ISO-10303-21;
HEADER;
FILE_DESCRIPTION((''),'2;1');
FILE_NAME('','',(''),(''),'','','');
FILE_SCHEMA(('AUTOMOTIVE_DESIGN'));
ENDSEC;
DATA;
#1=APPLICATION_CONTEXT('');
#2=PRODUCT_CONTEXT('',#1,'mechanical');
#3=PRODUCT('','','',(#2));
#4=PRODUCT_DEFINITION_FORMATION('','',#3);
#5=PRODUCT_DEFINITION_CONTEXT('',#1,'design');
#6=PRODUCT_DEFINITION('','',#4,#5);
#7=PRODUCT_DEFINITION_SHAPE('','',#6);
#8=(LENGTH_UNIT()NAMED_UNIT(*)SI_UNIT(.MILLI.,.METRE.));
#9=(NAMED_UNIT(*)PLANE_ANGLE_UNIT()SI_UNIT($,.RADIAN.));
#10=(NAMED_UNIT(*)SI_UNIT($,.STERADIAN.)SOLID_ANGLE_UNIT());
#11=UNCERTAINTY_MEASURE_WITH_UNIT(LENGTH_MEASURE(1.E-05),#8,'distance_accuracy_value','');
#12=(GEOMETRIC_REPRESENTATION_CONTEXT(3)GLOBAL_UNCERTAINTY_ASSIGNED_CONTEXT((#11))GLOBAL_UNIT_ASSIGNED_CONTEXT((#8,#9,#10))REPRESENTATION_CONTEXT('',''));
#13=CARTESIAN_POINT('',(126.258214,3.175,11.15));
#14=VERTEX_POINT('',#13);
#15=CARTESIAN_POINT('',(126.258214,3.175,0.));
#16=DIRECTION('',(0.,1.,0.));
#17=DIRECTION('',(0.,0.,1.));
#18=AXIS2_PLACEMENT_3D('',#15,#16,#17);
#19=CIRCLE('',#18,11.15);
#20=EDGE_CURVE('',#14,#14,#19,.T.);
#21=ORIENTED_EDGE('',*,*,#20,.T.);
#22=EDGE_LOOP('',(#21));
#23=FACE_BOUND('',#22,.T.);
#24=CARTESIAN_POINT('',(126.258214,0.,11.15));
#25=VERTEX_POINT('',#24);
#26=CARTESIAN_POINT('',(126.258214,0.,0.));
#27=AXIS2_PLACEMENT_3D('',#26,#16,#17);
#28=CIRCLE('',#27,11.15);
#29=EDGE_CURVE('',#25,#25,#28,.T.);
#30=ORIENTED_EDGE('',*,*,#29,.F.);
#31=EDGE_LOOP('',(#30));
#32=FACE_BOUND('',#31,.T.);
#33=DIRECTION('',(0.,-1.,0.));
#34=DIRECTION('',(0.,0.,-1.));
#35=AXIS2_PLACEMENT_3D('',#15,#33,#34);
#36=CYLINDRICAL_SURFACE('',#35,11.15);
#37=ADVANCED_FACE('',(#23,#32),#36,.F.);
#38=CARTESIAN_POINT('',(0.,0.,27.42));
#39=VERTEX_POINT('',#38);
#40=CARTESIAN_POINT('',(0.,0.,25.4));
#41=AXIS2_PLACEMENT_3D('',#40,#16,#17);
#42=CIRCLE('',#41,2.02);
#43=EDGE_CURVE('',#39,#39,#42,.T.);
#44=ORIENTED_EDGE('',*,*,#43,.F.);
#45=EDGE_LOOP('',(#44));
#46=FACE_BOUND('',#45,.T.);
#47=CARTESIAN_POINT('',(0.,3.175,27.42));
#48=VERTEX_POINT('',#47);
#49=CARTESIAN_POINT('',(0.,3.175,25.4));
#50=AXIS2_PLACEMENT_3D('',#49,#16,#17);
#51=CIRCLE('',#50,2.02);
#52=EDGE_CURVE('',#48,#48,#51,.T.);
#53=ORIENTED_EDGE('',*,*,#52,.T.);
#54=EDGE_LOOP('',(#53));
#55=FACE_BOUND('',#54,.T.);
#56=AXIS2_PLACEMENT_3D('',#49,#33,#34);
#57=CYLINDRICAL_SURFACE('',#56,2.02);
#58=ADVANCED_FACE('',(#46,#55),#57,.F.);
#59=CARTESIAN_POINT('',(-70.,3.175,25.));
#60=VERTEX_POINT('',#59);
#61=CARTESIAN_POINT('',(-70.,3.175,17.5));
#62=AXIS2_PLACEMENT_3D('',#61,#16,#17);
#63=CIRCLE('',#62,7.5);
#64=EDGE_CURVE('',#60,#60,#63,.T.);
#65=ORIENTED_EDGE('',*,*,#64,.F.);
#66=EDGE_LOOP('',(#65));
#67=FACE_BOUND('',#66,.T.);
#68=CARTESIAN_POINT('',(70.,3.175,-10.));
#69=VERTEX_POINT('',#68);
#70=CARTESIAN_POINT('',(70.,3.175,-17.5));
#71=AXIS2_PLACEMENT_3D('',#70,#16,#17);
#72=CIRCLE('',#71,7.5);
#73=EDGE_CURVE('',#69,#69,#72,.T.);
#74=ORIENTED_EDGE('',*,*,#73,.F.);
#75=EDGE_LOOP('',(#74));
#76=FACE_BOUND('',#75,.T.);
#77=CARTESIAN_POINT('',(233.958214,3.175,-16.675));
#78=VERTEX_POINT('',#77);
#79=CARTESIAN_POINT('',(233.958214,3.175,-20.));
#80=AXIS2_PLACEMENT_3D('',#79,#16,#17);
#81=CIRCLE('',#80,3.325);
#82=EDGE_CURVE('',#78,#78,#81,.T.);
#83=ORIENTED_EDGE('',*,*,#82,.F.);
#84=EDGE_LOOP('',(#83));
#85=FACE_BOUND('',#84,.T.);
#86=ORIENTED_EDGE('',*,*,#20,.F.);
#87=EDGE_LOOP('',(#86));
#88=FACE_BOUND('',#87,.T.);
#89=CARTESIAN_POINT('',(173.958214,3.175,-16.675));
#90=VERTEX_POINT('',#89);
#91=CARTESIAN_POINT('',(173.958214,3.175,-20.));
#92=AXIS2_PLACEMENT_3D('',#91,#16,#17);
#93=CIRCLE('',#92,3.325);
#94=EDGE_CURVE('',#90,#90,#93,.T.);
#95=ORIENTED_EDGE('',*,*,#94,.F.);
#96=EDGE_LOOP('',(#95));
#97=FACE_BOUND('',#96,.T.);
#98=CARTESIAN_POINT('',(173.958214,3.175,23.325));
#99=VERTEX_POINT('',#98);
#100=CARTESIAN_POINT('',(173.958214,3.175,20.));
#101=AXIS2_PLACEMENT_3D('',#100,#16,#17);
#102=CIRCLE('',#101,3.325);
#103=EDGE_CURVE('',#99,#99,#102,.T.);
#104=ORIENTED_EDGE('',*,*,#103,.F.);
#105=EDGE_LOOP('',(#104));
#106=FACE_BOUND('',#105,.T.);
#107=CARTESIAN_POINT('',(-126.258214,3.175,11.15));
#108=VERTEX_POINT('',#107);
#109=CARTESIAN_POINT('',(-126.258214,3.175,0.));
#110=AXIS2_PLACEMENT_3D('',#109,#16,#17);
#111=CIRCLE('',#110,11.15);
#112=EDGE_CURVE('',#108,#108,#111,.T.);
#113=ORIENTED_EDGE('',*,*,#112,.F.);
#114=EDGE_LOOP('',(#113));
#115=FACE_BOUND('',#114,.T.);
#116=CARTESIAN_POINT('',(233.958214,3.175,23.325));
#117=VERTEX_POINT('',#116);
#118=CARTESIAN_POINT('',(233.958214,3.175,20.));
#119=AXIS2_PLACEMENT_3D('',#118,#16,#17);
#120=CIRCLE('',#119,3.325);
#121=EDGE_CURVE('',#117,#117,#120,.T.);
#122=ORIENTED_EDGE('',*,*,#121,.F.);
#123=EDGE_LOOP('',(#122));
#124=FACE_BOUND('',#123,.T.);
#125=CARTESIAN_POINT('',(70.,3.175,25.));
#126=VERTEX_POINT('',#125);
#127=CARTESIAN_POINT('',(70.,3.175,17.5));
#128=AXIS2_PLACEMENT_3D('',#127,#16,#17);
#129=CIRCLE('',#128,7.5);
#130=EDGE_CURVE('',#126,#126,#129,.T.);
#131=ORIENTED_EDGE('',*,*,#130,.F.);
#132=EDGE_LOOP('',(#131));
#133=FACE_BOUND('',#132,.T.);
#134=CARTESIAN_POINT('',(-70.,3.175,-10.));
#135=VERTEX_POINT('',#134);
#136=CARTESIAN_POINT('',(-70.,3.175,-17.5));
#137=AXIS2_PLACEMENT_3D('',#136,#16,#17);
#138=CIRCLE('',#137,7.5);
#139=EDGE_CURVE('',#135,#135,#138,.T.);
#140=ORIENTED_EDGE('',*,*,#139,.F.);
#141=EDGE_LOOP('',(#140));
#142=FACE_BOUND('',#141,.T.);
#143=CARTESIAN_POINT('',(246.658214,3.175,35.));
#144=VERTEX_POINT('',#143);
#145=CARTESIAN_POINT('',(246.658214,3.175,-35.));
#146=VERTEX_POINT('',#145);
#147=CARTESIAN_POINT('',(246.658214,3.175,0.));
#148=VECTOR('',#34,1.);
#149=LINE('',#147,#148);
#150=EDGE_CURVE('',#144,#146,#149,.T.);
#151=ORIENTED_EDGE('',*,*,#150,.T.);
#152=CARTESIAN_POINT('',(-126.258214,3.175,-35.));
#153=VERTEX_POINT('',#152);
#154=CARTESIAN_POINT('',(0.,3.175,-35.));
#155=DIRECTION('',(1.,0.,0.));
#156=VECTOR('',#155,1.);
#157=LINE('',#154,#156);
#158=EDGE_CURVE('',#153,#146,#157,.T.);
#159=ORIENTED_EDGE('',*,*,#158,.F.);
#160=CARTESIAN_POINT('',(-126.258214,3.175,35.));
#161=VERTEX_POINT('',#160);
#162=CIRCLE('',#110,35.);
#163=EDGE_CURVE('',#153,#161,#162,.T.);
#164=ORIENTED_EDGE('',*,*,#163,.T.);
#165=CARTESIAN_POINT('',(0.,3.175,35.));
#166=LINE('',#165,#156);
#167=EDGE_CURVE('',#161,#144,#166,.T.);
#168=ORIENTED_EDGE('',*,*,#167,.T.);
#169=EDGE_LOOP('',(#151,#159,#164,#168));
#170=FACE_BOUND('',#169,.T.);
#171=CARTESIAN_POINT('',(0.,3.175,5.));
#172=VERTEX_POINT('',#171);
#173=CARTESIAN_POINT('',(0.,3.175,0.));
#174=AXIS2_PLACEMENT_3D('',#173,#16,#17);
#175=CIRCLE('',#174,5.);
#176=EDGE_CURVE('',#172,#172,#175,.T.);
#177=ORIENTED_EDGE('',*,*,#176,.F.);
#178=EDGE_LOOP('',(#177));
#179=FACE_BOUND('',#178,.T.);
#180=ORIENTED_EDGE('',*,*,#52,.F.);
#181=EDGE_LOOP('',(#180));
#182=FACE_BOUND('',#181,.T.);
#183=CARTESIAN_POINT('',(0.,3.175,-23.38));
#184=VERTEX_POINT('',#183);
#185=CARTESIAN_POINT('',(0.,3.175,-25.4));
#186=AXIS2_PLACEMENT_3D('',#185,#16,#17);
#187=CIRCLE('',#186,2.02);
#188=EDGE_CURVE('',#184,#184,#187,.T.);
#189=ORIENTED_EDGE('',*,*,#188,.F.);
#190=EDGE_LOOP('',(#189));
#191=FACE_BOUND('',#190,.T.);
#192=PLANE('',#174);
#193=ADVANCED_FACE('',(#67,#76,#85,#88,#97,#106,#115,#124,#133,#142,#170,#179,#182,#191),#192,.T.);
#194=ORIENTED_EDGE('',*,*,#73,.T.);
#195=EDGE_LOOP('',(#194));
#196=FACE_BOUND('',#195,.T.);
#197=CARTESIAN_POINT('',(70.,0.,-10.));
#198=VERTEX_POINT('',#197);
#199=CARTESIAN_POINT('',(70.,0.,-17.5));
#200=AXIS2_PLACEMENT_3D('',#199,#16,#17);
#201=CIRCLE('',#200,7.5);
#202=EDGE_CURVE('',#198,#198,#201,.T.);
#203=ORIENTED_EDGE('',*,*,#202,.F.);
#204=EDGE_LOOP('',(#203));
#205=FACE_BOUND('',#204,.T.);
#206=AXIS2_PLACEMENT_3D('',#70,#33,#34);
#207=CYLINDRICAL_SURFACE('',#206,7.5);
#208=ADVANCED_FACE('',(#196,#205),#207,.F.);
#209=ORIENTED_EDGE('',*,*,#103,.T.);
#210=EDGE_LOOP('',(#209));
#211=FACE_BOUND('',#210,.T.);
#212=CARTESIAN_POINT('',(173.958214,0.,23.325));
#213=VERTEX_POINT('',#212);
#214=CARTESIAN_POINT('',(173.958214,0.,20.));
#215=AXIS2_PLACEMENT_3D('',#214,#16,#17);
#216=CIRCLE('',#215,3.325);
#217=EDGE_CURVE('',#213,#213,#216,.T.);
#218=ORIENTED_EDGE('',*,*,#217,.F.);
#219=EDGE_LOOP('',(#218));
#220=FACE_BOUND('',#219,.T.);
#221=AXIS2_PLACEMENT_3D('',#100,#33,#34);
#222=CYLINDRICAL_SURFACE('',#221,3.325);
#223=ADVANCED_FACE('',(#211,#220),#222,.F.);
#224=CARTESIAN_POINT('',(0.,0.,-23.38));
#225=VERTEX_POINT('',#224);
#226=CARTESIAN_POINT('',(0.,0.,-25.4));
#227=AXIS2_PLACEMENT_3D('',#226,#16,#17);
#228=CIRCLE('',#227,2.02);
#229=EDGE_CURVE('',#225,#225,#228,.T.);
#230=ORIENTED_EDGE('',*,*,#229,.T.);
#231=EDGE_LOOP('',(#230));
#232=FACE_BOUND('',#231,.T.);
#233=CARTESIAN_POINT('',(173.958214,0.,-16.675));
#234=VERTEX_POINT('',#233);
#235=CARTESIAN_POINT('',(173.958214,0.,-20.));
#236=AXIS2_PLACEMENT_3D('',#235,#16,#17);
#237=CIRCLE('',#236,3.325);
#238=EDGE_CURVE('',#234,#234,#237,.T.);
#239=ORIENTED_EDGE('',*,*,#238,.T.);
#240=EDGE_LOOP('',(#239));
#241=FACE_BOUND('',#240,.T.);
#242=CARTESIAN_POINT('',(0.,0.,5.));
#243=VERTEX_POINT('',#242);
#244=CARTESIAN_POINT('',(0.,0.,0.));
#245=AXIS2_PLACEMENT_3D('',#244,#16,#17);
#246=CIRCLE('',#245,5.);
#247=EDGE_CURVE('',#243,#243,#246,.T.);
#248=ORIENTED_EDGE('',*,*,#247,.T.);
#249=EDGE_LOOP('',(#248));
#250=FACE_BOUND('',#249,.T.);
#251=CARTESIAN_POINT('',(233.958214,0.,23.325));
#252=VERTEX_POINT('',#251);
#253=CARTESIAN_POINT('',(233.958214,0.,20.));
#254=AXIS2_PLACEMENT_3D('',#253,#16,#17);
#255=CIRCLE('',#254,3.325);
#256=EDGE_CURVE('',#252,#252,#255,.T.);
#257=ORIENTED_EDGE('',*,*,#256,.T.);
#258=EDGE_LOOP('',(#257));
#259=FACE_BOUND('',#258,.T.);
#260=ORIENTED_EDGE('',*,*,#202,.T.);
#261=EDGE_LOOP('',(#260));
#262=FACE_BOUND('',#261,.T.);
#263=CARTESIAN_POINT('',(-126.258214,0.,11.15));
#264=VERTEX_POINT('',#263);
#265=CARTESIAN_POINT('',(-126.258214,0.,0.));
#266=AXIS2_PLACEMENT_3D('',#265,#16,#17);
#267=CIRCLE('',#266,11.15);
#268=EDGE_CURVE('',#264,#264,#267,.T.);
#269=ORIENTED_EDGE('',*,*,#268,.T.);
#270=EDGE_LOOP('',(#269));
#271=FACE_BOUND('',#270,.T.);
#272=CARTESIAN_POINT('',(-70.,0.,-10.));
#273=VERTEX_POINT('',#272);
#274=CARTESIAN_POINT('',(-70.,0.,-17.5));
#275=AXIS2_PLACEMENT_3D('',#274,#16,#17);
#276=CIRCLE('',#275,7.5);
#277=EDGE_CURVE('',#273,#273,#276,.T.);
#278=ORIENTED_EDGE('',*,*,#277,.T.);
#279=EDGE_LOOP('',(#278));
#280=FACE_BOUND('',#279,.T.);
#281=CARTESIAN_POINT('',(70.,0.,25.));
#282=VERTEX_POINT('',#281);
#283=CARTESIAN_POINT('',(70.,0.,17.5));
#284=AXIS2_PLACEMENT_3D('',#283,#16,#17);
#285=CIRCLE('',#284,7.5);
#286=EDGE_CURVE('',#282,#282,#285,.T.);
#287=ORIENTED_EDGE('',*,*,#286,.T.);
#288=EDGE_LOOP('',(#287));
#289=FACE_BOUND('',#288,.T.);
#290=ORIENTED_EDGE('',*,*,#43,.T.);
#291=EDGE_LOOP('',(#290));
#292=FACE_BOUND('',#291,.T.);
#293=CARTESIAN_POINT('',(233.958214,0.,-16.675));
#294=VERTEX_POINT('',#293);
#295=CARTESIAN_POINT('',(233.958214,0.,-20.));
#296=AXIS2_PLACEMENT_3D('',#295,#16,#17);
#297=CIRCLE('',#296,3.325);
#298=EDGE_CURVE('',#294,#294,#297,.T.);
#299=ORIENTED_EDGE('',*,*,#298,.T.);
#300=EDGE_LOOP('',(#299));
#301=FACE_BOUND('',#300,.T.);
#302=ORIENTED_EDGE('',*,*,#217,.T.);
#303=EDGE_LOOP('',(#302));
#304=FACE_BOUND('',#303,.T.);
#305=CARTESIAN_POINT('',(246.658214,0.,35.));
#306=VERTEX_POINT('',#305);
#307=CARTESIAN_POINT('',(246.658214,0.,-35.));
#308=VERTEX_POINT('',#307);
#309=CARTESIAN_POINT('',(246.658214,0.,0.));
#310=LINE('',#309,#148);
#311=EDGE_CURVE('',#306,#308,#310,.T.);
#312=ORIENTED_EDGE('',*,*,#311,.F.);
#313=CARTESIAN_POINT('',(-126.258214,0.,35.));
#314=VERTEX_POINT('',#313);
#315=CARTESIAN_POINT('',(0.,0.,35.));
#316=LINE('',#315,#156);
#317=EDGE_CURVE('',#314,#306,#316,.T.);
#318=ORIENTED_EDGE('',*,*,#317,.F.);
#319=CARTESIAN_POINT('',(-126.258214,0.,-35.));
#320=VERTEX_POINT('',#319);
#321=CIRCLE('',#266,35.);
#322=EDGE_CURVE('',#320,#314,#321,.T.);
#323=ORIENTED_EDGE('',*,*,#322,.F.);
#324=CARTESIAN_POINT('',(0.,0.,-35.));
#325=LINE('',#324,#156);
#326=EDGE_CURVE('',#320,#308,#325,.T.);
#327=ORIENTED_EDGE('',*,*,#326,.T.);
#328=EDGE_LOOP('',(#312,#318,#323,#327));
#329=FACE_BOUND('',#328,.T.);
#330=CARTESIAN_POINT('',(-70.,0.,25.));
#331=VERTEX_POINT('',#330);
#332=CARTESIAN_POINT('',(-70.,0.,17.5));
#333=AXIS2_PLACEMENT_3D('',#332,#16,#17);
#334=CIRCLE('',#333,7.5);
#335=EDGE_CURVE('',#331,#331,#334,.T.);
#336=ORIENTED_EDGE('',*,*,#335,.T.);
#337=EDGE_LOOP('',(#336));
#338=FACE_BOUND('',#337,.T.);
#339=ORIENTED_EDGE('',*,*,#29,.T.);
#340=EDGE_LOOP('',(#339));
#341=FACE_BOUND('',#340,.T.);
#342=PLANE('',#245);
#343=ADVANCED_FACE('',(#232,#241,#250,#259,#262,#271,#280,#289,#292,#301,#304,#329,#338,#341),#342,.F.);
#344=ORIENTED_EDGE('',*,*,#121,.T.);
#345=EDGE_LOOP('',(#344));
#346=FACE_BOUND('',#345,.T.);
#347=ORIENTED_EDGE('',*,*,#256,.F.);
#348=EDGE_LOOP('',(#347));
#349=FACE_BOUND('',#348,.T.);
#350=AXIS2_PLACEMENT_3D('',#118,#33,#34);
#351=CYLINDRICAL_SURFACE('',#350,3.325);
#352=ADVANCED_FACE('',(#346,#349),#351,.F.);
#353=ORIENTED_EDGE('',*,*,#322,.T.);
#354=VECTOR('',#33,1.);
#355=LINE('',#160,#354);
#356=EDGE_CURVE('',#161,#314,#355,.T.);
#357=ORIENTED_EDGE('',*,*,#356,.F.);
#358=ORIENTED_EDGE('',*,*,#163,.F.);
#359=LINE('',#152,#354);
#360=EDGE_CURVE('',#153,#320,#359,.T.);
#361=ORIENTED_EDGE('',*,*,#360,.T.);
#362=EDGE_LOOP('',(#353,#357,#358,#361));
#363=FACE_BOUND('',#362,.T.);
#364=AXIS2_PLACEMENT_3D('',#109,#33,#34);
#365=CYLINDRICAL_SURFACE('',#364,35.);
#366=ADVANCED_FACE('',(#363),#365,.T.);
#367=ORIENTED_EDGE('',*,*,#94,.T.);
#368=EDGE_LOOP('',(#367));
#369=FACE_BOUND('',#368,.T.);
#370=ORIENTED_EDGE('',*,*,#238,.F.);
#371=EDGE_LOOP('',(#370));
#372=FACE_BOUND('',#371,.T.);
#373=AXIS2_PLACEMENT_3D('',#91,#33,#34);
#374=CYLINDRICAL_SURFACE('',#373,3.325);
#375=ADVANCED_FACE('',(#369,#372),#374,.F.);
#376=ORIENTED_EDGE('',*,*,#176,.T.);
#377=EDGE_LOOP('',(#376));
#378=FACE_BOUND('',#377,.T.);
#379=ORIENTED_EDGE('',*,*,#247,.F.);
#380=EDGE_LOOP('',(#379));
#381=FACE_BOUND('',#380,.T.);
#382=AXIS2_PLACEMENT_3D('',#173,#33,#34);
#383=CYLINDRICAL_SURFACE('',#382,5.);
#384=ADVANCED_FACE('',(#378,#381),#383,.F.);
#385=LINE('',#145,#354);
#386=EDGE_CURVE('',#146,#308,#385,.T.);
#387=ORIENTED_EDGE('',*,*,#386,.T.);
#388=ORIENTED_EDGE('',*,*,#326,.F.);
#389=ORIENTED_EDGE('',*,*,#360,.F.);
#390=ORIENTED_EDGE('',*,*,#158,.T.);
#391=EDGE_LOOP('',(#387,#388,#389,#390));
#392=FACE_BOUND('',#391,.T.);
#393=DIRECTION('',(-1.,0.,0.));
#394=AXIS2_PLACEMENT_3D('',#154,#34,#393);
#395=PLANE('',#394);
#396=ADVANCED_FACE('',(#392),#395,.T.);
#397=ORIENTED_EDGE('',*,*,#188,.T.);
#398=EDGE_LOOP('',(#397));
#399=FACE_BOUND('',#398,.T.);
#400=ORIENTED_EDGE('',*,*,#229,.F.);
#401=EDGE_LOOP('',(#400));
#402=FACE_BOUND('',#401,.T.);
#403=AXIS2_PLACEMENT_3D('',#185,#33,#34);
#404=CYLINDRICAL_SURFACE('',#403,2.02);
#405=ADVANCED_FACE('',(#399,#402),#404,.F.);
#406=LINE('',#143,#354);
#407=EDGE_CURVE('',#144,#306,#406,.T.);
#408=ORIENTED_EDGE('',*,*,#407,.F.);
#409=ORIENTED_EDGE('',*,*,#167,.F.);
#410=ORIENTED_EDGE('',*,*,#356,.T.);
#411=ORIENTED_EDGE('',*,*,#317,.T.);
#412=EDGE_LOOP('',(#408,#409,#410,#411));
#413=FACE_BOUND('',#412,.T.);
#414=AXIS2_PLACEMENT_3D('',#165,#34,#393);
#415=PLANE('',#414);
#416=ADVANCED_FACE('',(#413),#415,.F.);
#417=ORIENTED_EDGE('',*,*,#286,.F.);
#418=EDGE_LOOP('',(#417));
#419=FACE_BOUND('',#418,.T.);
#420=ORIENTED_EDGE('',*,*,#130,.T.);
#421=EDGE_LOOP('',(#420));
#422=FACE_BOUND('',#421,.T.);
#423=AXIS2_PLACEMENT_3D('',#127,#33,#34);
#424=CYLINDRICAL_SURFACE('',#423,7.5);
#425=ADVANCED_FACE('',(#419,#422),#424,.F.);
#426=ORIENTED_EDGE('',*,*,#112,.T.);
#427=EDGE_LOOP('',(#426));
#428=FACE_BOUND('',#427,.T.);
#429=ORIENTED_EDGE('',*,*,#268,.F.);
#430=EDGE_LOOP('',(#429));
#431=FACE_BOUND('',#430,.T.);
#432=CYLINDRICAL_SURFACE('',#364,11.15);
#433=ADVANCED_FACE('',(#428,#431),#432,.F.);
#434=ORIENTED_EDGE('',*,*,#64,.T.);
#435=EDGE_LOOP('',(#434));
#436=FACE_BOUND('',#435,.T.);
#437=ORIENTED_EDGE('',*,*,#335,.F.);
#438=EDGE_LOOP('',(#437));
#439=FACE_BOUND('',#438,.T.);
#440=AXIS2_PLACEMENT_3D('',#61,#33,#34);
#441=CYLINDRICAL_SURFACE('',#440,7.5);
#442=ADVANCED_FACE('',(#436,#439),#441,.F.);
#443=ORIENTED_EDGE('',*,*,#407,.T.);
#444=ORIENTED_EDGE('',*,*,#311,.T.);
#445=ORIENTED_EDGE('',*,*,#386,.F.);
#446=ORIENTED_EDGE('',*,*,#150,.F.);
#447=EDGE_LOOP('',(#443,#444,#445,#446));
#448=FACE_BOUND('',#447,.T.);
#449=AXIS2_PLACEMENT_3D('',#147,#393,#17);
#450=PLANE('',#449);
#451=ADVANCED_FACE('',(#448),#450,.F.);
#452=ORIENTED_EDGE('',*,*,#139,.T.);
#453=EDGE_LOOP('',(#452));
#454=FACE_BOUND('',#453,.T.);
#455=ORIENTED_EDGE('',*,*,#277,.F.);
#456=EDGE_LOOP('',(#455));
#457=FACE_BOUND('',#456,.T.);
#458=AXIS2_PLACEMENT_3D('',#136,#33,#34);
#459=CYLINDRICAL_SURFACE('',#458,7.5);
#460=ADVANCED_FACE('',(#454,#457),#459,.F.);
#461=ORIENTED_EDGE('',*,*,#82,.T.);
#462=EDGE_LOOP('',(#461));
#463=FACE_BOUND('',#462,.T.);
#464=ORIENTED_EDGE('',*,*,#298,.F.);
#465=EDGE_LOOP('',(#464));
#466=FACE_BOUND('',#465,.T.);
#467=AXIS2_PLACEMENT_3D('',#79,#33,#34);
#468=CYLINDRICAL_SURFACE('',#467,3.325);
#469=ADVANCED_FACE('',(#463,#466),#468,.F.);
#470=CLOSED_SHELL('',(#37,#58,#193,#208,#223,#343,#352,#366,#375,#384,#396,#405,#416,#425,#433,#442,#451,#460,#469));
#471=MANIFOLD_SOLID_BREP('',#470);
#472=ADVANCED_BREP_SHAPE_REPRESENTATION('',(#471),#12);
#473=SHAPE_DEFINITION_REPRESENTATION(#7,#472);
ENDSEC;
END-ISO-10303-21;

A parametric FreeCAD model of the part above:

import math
import FreeCAD as App
import Part
import Sketcher
from FreeCAD import Vector
Q = App.Units.Quantity

doc = App.newDocument("Part")
params = doc.addObject("Spreadsheet::Sheet", "Params")
for row, (alias, value) in enumerate([
    ("sketch1_diameter", "15 mm"),
    ("sketch1_diameter2", "10 mm"),
    ("sketch1_radius", "35 mm"),
    ("sketch1_diameter3", "22.3 mm"),
    ("sketch1_diameter4", "4.04 mm"),
    ("pad1_length", "3.175 mm"),
], start=1):
    params.set(f"A{row}", alias)
    params.set(f"B{row}", "=" + value)
    params.setAlias(f"B{row}", alias)

body = doc.addObject("PartDesign::Body", "Body")

# Sketch on XZ plane
sketch1 = body.newObject("Sketcher::SketchObject", "Sketch")
sketch1.AttachmentSupport = (doc.getObject("XZ_Plane"), [""])
sketch1.MapMode = "FlatFace"
sketch1.addGeometry([
    Part.ArcOfCircle(Part.Circle(Vector(-126.3, 0, 0), Vector(0, 0, 1), 35), math.radians(90), math.radians(270)),  # 0
    Part.LineSegment(Vector(-126.3, 35, 0), Vector(246.7, 35, 0)),  # 1
    Part.LineSegment(Vector(246.7, 35, 0), Vector(246.7, -35, 0)),  # 2
    Part.LineSegment(Vector(246.7, -35, 0), Vector(-126.3, -35, 0)),  # 3
    Part.Circle(Vector(-70, 17.5, 0), Vector(0, 0, 1), 7.5),  # 4
    Part.Circle(Vector(0, 25.4, 0), Vector(0, 0, 1), 2),  # 5
    Part.Circle(Vector(-126.3, 0, 0), Vector(0, 0, 1), 11.2),  # 6
    Part.Circle(Vector(0, 0, 0), Vector(0, 0, 1), 5),  # 7
    Part.Circle(Vector(70, 17.5, 0), Vector(0, 0, 1), 7.5),  # 8
    Part.Circle(Vector(174, 20, 0), Vector(0, 0, 1), 3.3),  # 9
    Part.Circle(Vector(234, 20, 0), Vector(0, 0, 1), 3.3),  # 10
    Part.Circle(Vector(126.3, 0, 0), Vector(0, 0, 1), 11.2),  # 11
    Part.Circle(Vector(-70, -17.5, 0), Vector(0, 0, 1), 7.5),  # 12
    Part.Circle(Vector(0, -25.4, 0), Vector(0, 0, 1), 2),  # 13
    Part.Circle(Vector(70, -17.5, 0), Vector(0, 0, 1), 7.5),  # 14
    Part.Circle(Vector(174, -20, 0), Vector(0, 0, 1), 3.3),  # 15
    Part.Circle(Vector(234, -20, 0), Vector(0, 0, 1), 3.3),  # 16
], False)
sketch1.addConstraint([
    Sketcher.Constraint("Tangent", 0, 1, 1, 1),
    Sketcher.Constraint("Coincident", 1, 2, 2, 1),
    Sketcher.Constraint("Coincident", 2, 2, 3, 1),
    Sketcher.Constraint("Tangent", 3, 2, 0, 2),
    Sketcher.Constraint("Horizontal", 1),
    Sketcher.Constraint("Vertical", 2),
    Sketcher.Constraint("Horizontal", 3),
    Sketcher.Constraint("Coincident", 7, 3, -1, 1),
    Sketcher.Constraint("Coincident", 6, 3, 0, 3),
    Sketcher.Constraint("Equal", 4, 8),
    Sketcher.Constraint("Equal", 9, 10),
    Sketcher.Constraint("Equal", 6, 11),
    Sketcher.Constraint("Equal", 8, 12),
    Sketcher.Constraint("Equal", 5, 13),
    Sketcher.Constraint("Equal", 12, 14),
    Sketcher.Constraint("Equal", 10, 15),
    Sketcher.Constraint("Equal", 15, 16),
    Sketcher.Constraint("Symmetric", 0, 3, 11, 3, -1, 1),
    Sketcher.Constraint("Symmetric", 8, 3, 12, 3, -1, 1),
    Sketcher.Constraint("Symmetric", 5, 3, 13, 3, -1, 1),
    Sketcher.Constraint("Symmetric", 4, 3, 14, 3, -1, 1),
    Sketcher.Constraint("Symmetric", 4, 3, 8, 3, -2),
    Sketcher.Constraint("Symmetric", 9, 3, 15, 3, -1),
    Sketcher.Constraint("Symmetric", 10, 3, 16, 3, -1),
    Sketcher.Constraint("PointOnObject", 0, 3, -1),
    Sketcher.Constraint("PointOnObject", 5, 3, -2),
    Sketcher.Constraint("Horizontal", 9, 3, 10, 3),
    Sketcher.Constraint("Diameter", 4, Q("15 mm")),
    Sketcher.Constraint("Diameter", 7, Q("10 mm")),
    Sketcher.Constraint("Radius", 0, Q("35 mm")),
    Sketcher.Constraint("Diameter", 6, Q("22.3 mm")),
    Sketcher.Constraint("Diameter", 5, Q("4.04 mm")),
    Sketcher.Constraint("Diameter", 9, Q("6.65 mm")),
    Sketcher.Constraint("DistanceX", 4, 3, -1, 1, Q("70 mm")),
    Sketcher.Constraint("DistanceY", -1, 1, 9, 3, Q("20 mm")),
    Sketcher.Constraint("DistanceX", 9, 3, 10, 3, Q("60 mm")),
    Sketcher.Constraint("DistanceY", 12, 3, 4, 3, Q("35 mm")),
    Sketcher.Constraint("DistanceY", -1, 1, 5, 3, Q("25.4 mm")),
    Sketcher.Constraint("DistanceX", 11, 3, 9, 3, Q("47.7 mm")),
    Sketcher.Constraint("DistanceX", 10, 3, 1, 2, Q("12.7 mm")),
    Sketcher.Constraint("DistanceX", 1, 1, 1, 2, Q("372.916429 mm")),
])
sketch1.setExpression("Constraints[27]", "Params.sketch1_diameter")
sketch1.setExpression("Constraints[28]", "Params.sketch1_diameter2")
sketch1.setExpression("Constraints[29]", "Params.sketch1_radius")
sketch1.setExpression("Constraints[30]", "Params.sketch1_diameter3")
sketch1.setExpression("Constraints[31]", "Params.sketch1_diameter4")
pad1 = body.newObject("PartDesign::Pad", "Pad")
pad1.Profile = sketch1
pad1.setExpression("Length", "Params.pad1_length")
pad1.Reversed = True

doc.recompute()
